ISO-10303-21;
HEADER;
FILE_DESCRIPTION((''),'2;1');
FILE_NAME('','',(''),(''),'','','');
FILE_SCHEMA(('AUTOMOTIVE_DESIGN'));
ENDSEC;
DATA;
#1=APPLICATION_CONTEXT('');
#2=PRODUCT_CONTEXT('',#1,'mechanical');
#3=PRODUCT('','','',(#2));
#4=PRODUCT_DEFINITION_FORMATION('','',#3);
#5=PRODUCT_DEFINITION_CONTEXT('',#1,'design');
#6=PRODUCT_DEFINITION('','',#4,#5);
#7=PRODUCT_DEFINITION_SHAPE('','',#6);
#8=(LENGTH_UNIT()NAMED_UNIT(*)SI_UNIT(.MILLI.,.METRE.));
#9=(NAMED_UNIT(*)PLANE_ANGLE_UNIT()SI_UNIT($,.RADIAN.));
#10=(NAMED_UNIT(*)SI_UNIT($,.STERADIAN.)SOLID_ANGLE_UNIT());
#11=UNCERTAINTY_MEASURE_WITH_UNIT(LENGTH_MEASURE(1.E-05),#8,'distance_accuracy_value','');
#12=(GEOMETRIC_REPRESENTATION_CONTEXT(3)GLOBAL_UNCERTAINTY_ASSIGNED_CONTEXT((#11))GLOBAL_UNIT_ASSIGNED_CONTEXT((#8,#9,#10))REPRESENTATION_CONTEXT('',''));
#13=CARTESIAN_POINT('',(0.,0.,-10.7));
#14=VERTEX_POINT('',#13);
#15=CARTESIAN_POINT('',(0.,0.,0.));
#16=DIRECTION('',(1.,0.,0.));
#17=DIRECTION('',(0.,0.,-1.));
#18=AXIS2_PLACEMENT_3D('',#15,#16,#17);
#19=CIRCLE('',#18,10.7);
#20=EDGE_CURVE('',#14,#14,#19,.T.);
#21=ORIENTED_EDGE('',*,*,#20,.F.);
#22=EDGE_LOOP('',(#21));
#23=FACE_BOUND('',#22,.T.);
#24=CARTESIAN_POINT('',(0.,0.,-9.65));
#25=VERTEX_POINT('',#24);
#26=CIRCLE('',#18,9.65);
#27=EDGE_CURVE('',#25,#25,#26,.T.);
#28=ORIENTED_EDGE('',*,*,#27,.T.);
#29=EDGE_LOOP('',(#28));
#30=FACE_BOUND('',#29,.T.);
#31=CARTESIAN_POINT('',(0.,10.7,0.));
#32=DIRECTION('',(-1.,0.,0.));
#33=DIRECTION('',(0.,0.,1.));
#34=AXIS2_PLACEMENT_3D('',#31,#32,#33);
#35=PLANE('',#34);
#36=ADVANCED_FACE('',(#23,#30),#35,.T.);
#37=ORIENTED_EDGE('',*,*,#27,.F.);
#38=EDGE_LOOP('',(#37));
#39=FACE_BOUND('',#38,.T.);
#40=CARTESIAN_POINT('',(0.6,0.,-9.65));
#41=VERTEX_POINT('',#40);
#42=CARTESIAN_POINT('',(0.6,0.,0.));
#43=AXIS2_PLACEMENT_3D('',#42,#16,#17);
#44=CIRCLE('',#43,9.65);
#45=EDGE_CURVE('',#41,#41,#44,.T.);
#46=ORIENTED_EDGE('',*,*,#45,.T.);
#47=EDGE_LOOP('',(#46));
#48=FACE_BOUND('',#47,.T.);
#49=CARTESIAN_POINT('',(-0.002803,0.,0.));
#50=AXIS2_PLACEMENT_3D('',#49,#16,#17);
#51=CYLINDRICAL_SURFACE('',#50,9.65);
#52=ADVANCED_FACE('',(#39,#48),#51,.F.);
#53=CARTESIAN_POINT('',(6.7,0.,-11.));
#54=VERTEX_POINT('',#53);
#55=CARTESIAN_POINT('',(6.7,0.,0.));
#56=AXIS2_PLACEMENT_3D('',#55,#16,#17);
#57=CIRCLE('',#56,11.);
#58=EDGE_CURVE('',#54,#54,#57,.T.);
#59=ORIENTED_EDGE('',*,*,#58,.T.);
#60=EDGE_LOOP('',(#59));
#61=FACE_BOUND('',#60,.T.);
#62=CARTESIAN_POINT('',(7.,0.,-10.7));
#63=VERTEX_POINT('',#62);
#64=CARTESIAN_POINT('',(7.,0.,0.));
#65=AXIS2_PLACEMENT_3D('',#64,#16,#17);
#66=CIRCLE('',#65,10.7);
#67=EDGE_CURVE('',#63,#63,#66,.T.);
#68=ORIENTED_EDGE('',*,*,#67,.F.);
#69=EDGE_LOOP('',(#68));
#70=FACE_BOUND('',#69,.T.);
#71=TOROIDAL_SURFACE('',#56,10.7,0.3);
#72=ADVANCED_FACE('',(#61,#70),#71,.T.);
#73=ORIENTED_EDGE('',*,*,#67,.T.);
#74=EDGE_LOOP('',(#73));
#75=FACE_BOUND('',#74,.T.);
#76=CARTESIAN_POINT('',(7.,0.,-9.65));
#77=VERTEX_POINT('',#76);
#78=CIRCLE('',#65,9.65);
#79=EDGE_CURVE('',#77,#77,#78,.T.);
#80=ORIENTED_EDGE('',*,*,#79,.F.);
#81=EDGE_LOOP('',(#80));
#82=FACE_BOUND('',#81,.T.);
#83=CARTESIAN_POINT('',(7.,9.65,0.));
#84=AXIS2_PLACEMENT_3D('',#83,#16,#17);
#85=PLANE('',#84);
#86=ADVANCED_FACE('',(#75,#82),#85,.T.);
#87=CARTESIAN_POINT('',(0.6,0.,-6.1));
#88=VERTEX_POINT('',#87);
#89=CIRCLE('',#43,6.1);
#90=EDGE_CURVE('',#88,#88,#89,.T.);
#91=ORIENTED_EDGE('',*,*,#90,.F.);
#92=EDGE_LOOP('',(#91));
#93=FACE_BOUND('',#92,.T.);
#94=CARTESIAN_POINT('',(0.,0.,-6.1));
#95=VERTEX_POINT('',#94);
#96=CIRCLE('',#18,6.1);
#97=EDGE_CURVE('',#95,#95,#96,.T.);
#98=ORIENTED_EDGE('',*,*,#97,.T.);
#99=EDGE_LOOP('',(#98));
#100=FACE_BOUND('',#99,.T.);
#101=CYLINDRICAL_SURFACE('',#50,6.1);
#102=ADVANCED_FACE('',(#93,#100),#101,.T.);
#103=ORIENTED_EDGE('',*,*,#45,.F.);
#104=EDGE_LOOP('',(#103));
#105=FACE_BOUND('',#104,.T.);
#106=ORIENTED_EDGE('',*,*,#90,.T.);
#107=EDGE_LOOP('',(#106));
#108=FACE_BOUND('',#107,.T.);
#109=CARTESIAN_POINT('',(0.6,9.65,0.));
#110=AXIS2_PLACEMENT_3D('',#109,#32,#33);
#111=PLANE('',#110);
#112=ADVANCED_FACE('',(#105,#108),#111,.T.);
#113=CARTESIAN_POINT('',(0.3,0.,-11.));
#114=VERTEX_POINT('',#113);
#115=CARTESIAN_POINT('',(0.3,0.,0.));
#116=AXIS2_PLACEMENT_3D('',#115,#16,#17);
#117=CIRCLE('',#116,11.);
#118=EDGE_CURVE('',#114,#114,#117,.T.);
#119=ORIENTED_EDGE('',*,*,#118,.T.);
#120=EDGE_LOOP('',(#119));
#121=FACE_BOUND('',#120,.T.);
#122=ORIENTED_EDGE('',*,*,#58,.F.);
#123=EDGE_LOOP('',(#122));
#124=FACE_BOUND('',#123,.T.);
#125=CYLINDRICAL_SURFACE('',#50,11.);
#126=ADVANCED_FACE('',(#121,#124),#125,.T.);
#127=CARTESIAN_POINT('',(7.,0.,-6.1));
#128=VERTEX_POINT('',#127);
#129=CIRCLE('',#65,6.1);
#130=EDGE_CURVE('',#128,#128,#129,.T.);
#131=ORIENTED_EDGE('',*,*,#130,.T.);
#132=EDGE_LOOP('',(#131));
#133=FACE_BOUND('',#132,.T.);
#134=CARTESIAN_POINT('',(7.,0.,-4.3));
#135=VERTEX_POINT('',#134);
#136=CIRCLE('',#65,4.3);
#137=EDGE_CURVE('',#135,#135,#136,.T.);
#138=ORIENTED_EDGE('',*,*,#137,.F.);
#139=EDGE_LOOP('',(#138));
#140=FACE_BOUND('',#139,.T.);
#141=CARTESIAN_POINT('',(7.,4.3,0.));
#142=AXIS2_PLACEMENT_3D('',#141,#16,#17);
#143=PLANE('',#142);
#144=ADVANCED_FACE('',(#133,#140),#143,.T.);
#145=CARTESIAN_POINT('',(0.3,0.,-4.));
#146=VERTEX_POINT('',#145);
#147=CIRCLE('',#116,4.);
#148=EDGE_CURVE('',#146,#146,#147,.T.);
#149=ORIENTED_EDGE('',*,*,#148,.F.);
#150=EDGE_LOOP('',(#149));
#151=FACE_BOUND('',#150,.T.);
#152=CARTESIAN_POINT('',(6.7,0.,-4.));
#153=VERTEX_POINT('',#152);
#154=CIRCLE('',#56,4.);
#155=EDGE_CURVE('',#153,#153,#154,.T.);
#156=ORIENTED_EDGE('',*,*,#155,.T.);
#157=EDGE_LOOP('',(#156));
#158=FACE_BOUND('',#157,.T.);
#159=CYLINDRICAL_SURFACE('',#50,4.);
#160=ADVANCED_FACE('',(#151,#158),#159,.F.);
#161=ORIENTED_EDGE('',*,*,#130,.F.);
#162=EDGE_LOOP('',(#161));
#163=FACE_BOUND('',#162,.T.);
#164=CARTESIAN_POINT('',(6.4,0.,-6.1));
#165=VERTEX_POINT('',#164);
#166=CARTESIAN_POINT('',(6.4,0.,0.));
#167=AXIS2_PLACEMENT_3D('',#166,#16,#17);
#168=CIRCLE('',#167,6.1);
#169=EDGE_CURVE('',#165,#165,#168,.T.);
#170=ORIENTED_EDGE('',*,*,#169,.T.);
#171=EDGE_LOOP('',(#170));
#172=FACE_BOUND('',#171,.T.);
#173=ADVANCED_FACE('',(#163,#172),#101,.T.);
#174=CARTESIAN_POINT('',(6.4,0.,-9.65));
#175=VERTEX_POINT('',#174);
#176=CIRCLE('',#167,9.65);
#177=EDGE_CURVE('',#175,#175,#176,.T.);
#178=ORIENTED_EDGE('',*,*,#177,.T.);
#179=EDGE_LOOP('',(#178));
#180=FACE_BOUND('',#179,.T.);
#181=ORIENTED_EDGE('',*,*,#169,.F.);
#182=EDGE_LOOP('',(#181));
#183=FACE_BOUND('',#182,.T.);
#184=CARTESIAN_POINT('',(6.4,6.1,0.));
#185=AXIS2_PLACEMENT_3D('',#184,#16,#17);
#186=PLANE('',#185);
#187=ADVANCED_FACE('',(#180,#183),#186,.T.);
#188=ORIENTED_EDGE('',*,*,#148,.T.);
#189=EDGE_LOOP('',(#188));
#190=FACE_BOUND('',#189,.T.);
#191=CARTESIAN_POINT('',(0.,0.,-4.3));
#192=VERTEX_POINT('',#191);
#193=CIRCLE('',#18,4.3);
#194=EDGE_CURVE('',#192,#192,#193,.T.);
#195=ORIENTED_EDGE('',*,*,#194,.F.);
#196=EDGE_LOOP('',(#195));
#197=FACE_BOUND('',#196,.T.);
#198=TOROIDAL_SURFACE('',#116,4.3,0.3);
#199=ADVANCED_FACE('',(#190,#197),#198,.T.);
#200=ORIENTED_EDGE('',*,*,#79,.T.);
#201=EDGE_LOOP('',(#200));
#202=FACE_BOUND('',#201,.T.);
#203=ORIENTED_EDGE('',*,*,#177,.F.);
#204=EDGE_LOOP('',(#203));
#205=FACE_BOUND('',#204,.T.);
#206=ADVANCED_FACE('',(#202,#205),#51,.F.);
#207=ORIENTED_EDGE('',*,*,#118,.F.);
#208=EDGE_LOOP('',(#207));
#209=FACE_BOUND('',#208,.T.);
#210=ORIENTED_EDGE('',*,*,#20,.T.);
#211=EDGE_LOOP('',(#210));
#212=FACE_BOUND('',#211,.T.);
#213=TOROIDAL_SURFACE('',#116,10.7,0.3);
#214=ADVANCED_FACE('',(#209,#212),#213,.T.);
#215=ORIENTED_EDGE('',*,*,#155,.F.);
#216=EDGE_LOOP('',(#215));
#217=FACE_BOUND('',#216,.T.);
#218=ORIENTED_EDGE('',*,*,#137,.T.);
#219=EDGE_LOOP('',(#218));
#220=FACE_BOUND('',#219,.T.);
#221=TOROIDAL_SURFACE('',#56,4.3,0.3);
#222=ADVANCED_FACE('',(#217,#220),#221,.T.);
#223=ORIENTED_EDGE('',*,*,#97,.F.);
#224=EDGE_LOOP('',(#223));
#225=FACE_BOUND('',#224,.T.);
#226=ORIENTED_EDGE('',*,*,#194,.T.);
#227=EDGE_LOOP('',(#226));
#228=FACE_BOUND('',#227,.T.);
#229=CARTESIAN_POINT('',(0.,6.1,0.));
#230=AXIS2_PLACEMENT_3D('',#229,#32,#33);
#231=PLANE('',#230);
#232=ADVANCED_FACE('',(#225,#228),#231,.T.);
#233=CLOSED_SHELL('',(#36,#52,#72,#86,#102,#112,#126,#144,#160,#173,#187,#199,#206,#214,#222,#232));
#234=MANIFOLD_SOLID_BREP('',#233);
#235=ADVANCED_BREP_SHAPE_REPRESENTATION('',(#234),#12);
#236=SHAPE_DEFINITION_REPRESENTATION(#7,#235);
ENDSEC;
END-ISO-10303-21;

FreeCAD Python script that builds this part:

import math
import FreeCAD as App
import Part
import Sketcher

V = App.Vector
Q = App.Units.Quantity

doc = App.newDocument("Part")
body = doc.addObject("PartDesign::Body", "Body")

# Sketch on XY plane
sketch1 = doc.addObject("Sketcher::SketchObject", "Sketch")
body.addObject(sketch1)
sketch1.AttachmentSupport = (doc.XY_Plane, [""])
sketch1.MapMode = "FlatFace"
sketch1.addGeometry([
    Part.LineSegment(V(0.3, 4, 0), V(6.7, 4, 0)),  # 0
    Part.ArcOfCircle(Part.Circle(V(6.7, 4.3, 0), V(0, 0, 1), 0.3), math.radians(-90), math.radians(0)),  # 1
    Part.LineSegment(V(7, 4.3, 0), V(7, 6.1, 0)),  # 2
    Part.LineSegment(V(7, 6.1, 0), V(6.4, 6.1, 0)),  # 3
    Part.LineSegment(V(6.4, 6.1, 0), V(6.4, 9.65, 0)),  # 4
    Part.LineSegment(V(6.4, 9.65, 0), V(7, 9.65, 0)),  # 5
    Part.LineSegment(V(7, 9.65, 0), V(7, 10.7, 0)),  # 6
    Part.ArcOfCircle(Part.Circle(V(6.7, 10.7, 0), V(0, 0, 1), 0.3), math.radians(0), math.radians(90)),  # 7
    Part.LineSegment(V(6.7, 11, 0), V(0.3, 11, 0)),  # 8
    Part.ArcOfCircle(Part.Circle(V(0.3, 10.7, 0), V(0, 0, 1), 0.3), math.radians(90), math.radians(180)),  # 9
    Part.LineSegment(V(0, 10.7, 0), V(0, 9.65, 0)),  # 10
    Part.LineSegment(V(0, 9.65, 0), V(0.6, 9.65, 0)),  # 11
    Part.LineSegment(V(0.6, 9.65, 0), V(0.6, 6.1, 0)),  # 12
    Part.LineSegment(V(0.6, 6.1, 0), V(0, 6.1, 0)),  # 13
    Part.LineSegment(V(0, 6.1, 0), V(0, 4.3, 0)),  # 14
    Part.ArcOfCircle(Part.Circle(V(0.3, 4.3, 0), V(0, 0, 1), 0.3), math.radians(-180), math.radians(-90)),  # 15
], False)
sketch1.addConstraint([
    Sketcher.Constraint("Tangent", 0, 2, 1, 1),
    Sketcher.Constraint("Tangent", 1, 2, 2, 1),
    Sketcher.Constraint("Coincident", 2, 2, 3, 1),
    Sketcher.Constraint("Coincident", 3, 2, 4, 1),
    Sketcher.Constraint("Coincident", 4, 2, 5, 1),
    Sketcher.Constraint("Coincident", 5, 2, 6, 1),
    Sketcher.Constraint("Tangent", 6, 2, 7, 1),
    Sketcher.Constraint("Tangent", 7, 2, 8, 1),
    Sketcher.Constraint("Tangent", 8, 2, 9, 1),
    Sketcher.Constraint("Tangent", 9, 2, 10, 1),
    Sketcher.Constraint("Coincident", 10, 2, 11, 1),
    Sketcher.Constraint("Coincident", 11, 2, 12, 1),
    Sketcher.Constraint("Coincident", 12, 2, 13, 1),
    Sketcher.Constraint("Coincident", 13, 2, 14, 1),
    Sketcher.Constraint("Tangent", 14, 2, 15, 1),
    Sketcher.Constraint("Tangent", 15, 2, 0, 1),
    Sketcher.Constraint("Horizontal", 0),
    Sketcher.Constraint("Vertical", 2),
    Sketcher.Constraint("Horizontal", 3),
    Sketcher.Constraint("Vertical", 4),
    Sketcher.Constraint("Horizontal", 5),
    Sketcher.Constraint("Vertical", 6),
    Sketcher.Constraint("Horizontal", 8),
    Sketcher.Constraint("Vertical", 10),
    Sketcher.Constraint("Horizontal", 11),
    Sketcher.Constraint("Vertical", 12),
    Sketcher.Constraint("Horizontal", 13),
    Sketcher.Constraint("Vertical", 14),
    Sketcher.Constraint("Equal", 1, 7),
    Sketcher.Constraint("Equal", 7, 9),
    Sketcher.Constraint("Equal", 9, 15),
    Sketcher.Constraint("PointOnObject", 9, 2, -2),
    Sketcher.Constraint("PointOnObject", 13, 2, -2),
    Sketcher.Constraint("Horizontal", 5, 2, 10, 2),
    Sketcher.Constraint("Horizontal", 3, 2, 12, 2),
    Sketcher.Constraint("Vertical", 1, 3, 7, 3),
    Sketcher.Constraint("Equal", 5, 11),
    Sketcher.Constraint("Radius", 1, Q("0.3 mm")),
    Sketcher.Constraint("DistanceX", 0, 1, 0, 2, Q("6.4 mm")),
    Sketcher.Constraint("DistanceX", 3, 2, 3, 1, Q("0.6 mm")),
    Sketcher.Constraint("DistanceY", 2, 1, 2, 2, Q("1.8 mm")),
    Sketcher.Constraint("DistanceY", -1, 1, 0, 2, Q("4 mm")),
    Sketcher.Constraint("DistanceY", -1, 1, 7, 2, Q("11 mm")),
    Sketcher.Constraint("DistanceY", 4, 1, 4, 2, Q("3.55 mm")),
])
revolution = doc.addObject("PartDesign::Revolution", "Revolution")
body.addObject(revolution)
revolution.Profile = sketch1
revolution.ReferenceAxis = (sketch1, ["H_Axis"])
revolution.Angle = 360

doc.recompute()
